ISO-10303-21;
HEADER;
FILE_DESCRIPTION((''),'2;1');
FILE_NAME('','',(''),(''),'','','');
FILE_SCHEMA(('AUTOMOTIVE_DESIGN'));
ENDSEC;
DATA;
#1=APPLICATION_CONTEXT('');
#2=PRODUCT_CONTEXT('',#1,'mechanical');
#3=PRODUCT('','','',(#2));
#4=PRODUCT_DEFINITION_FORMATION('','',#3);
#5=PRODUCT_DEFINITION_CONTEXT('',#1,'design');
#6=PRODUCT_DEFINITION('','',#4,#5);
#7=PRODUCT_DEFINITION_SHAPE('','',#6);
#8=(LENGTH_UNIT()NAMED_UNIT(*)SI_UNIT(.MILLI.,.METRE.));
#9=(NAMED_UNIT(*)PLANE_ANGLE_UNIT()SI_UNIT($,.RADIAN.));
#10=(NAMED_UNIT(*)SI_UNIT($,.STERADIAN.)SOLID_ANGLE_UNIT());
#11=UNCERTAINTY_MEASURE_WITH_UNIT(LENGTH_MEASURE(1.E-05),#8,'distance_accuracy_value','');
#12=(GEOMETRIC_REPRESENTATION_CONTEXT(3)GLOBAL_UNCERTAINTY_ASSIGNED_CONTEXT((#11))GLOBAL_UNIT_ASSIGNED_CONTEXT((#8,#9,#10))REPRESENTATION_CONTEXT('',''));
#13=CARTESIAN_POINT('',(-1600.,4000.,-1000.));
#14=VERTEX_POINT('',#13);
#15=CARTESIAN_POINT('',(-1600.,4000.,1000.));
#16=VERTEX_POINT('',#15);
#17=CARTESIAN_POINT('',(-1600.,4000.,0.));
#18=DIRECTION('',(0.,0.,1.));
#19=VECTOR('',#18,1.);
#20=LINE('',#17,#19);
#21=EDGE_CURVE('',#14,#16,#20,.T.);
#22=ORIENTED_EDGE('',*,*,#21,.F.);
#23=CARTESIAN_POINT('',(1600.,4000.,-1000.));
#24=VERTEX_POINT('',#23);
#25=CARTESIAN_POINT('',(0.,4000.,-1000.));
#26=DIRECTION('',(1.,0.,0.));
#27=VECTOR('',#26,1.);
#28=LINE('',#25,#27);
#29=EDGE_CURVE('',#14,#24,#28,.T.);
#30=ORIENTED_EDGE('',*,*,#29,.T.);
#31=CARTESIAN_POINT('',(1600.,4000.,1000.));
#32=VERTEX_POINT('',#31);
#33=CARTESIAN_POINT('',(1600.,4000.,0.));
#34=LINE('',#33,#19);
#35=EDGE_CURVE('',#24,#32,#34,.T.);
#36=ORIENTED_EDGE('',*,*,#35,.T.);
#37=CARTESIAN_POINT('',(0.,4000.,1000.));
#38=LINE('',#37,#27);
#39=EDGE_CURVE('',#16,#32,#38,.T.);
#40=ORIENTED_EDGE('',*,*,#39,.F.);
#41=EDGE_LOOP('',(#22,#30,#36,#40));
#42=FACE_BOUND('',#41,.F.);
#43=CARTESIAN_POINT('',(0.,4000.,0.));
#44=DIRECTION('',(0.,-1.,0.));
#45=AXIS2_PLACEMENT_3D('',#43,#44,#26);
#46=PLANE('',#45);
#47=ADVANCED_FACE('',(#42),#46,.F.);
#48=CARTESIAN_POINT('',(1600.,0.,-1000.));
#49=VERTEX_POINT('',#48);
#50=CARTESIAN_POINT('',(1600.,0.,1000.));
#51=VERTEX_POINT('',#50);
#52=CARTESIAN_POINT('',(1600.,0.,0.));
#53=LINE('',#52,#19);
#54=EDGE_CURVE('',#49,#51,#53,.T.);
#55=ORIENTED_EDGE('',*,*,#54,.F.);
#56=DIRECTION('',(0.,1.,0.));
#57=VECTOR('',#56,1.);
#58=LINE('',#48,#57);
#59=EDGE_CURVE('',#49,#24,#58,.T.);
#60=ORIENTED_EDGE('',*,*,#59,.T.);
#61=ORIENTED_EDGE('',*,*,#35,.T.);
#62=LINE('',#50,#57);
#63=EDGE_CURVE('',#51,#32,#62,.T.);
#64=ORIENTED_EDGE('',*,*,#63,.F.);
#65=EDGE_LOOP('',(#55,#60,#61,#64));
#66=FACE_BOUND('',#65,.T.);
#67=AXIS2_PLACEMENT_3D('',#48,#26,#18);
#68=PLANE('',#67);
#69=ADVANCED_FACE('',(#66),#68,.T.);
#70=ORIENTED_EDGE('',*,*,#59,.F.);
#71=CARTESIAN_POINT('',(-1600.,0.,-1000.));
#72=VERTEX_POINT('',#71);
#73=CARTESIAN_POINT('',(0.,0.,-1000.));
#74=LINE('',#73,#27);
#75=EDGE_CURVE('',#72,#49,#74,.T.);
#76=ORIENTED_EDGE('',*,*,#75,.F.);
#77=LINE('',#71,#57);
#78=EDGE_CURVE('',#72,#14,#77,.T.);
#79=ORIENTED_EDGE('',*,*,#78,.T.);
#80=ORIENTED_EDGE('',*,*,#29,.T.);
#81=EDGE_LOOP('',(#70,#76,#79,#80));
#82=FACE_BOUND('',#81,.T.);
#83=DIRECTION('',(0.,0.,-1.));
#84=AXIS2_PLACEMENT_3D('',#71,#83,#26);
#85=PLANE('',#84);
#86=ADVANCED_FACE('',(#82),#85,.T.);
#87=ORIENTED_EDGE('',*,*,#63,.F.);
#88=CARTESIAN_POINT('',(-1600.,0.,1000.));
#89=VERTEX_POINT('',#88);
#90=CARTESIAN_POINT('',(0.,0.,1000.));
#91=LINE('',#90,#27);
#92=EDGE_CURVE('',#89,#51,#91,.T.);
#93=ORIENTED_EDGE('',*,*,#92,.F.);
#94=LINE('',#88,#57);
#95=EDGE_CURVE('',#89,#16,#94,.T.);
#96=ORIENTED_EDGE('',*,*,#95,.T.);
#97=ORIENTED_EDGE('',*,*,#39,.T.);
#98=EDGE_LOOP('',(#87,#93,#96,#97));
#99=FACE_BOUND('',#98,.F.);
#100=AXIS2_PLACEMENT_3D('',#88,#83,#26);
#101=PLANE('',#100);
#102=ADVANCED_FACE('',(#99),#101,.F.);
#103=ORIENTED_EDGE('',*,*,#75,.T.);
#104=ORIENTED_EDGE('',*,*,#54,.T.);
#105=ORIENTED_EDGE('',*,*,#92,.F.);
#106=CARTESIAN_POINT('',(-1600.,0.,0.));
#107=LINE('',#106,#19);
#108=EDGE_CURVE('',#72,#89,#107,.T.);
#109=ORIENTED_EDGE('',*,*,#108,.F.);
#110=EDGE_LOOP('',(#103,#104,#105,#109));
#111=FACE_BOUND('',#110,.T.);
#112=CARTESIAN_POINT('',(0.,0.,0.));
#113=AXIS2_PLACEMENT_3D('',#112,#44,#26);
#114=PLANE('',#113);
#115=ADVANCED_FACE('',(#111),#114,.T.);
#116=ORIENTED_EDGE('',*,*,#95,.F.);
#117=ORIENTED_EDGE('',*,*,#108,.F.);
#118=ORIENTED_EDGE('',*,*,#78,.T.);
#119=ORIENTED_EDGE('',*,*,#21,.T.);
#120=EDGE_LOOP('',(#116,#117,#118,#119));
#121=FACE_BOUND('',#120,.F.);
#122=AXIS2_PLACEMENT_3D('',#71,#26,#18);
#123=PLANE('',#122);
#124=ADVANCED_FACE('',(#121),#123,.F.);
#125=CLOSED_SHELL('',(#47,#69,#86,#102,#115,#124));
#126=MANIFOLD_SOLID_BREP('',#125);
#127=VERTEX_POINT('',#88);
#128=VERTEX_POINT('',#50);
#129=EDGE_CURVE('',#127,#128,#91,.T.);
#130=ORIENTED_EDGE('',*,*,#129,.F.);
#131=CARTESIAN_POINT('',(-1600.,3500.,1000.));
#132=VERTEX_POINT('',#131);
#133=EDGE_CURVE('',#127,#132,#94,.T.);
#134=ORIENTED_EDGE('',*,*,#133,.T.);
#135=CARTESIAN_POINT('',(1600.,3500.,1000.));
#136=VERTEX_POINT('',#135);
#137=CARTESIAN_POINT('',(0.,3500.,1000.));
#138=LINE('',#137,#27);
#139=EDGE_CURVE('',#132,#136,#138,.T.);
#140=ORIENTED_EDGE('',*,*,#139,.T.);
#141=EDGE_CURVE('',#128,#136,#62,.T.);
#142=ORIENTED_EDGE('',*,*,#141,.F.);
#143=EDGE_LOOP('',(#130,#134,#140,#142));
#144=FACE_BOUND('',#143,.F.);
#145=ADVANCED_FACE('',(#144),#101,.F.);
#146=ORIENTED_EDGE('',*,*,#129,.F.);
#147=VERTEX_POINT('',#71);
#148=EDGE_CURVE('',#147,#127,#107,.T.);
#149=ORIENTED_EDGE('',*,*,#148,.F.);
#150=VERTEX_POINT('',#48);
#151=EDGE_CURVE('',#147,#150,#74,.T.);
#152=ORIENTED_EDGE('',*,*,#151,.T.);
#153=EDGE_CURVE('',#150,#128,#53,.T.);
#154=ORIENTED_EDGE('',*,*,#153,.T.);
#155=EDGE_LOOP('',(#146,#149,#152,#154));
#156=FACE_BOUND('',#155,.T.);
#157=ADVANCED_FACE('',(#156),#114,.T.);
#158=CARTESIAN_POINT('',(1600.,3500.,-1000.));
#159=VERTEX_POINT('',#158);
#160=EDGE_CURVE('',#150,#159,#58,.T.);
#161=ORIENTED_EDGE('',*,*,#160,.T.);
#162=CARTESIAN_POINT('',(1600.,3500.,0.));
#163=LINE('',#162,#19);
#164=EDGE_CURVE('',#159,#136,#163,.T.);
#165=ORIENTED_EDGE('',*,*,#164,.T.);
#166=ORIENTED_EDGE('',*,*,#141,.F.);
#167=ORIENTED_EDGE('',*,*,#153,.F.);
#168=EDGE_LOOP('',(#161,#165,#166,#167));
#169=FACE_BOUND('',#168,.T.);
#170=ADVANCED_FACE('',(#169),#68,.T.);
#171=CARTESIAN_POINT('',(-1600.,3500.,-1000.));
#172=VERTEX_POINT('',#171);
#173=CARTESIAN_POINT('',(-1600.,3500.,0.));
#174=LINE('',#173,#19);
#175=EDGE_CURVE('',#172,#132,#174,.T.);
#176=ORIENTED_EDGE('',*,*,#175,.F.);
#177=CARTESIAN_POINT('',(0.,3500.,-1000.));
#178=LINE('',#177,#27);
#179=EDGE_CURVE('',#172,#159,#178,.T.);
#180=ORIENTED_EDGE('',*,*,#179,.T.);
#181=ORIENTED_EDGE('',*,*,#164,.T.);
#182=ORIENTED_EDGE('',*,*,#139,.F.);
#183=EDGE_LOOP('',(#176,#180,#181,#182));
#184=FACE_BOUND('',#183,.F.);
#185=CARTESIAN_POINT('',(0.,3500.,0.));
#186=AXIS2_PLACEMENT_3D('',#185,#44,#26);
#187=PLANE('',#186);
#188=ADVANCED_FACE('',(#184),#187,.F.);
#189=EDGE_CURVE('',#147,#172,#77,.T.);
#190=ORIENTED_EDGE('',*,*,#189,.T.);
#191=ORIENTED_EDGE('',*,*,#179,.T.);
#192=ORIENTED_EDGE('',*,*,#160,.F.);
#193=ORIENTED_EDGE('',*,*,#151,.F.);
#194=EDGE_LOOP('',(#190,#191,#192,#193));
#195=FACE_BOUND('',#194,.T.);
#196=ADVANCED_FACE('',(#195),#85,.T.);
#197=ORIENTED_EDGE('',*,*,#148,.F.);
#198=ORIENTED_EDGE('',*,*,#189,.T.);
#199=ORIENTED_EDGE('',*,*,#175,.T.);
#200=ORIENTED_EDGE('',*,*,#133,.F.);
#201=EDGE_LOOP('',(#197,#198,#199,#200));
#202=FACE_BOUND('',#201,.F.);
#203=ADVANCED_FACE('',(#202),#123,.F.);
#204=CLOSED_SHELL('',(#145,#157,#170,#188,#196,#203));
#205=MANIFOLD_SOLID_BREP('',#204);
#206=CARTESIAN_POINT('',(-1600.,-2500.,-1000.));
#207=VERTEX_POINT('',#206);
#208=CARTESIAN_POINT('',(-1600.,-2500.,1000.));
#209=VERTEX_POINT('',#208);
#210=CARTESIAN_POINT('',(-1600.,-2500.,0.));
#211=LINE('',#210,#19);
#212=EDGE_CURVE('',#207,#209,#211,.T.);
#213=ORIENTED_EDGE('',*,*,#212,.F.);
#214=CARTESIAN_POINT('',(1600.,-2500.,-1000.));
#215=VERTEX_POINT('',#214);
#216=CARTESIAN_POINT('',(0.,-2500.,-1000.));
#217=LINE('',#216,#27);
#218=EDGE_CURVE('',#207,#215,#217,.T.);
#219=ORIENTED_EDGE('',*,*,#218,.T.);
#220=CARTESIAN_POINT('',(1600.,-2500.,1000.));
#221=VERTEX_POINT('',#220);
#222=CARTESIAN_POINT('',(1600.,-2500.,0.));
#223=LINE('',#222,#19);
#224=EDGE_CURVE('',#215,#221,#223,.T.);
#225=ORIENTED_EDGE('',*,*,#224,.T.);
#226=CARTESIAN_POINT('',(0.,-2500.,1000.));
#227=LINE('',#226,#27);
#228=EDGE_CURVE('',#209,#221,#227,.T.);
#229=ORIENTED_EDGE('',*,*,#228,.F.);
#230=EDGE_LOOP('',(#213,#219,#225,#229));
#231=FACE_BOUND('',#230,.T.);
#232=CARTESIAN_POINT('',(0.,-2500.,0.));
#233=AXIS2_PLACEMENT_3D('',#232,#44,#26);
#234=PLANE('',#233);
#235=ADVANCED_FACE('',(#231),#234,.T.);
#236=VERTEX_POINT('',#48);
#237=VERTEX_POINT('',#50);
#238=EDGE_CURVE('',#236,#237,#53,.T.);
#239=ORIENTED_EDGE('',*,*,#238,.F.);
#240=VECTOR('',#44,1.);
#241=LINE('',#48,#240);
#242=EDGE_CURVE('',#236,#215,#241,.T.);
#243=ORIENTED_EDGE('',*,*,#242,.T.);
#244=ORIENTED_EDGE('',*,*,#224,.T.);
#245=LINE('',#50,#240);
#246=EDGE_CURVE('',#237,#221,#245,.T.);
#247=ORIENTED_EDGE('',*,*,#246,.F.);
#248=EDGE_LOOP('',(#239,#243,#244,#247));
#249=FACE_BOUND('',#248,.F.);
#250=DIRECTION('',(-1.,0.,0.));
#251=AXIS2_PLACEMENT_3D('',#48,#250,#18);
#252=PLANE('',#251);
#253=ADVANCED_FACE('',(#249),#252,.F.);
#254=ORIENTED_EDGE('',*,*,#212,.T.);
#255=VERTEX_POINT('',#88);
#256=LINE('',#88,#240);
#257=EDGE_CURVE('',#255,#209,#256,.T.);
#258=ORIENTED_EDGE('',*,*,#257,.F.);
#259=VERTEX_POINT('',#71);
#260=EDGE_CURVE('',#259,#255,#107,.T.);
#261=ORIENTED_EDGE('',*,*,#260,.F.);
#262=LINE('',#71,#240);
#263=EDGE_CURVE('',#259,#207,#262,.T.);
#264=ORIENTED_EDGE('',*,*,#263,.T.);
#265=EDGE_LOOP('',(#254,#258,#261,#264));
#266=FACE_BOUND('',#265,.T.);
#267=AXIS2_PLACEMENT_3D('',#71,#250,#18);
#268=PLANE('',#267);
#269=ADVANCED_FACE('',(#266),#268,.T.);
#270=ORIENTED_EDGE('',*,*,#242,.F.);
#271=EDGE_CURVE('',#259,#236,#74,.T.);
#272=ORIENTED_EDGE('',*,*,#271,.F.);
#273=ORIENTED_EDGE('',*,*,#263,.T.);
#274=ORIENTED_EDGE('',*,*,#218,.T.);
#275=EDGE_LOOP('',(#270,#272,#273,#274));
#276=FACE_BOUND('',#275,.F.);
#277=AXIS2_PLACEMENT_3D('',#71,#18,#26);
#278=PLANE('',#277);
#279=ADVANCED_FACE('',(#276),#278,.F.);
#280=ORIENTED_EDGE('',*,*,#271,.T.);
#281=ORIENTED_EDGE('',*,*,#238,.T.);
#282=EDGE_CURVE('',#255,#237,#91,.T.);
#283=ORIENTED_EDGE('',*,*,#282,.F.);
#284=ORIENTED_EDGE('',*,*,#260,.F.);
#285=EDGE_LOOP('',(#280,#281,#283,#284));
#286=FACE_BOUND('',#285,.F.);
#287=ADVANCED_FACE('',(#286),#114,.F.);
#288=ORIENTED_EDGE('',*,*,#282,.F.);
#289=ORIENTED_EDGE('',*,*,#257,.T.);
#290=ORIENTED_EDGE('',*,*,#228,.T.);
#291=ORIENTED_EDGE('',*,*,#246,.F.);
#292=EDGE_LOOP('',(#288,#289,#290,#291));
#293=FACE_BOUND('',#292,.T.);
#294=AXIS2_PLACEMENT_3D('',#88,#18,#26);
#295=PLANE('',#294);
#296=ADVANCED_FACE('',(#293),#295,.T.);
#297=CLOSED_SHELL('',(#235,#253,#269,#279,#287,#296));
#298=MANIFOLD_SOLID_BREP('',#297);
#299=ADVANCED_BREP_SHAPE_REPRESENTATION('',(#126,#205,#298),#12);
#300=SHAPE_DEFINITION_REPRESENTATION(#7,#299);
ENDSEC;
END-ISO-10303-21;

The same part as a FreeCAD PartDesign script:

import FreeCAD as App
import Part
import Sketcher
from FreeCAD import Vector
Q = App.Units.Quantity


def add_polygon(sketch, points):
    """Adds a closed chain of lines whose ends are joined by coincident constraints."""
    first, n = sketch.GeometryCount, len(points)
    for a, b in zip(points, points[1:] + points[:1]):
        sketch.addGeometry(Part.LineSegment(App.Vector(*a, 0), App.Vector(*b, 0)), False)
    for i in range(n):
        sketch.addConstraint(Sketcher.Constraint("Coincident", first + i, 2, first + (i + 1) % n, 1))

doc = App.newDocument("Part")
body = doc.addObject("PartDesign::Body", "Body")

# Sketch on XZ plane
sketch1 = body.newObject("Sketcher::SketchObject", "Sketch")
sketch1.AttachmentSupport = (doc.getObject("XZ_Plane"), [""])
sketch1.MapMode = "FlatFace"
add_polygon(sketch1, [(-1600, 1000), (-1600, -1000), (1600, -1000), (1600, 1000)])  # lines 0-3
sketch1.addConstraint([
    Sketcher.Constraint("Vertical", 0),
    Sketcher.Constraint("Horizontal", 1),
    Sketcher.Constraint("Vertical", 2),
    Sketcher.Constraint("Horizontal", 3),
    Sketcher.Constraint("Symmetric", 0, 2, 2, 2, -1, 1),
    Sketcher.Constraint("DistanceX", 1, 1, 1, 2, Q("3200 mm")),
    Sketcher.Constraint("DistanceY", 0, 2, 0, 1, Q("2000 mm")),
])
pad1 = body.newObject("PartDesign::Pad", "Pad")
pad1.Profile = sketch1
pad1.Length = 2500
body2 = doc.addObject("PartDesign::Body", "Body001")

# Sketch on XZ plane
sketch2 = body2.newObject("Sketcher::SketchObject", "Sketch001")
sketch2.AttachmentSupport = (doc.getObject("XZ_Plane001"), [""])
sketch2.MapMode = "FlatFace"
add_polygon(sketch2, [(-1600, 1000), (-1600, -1000), (1600, -1000), (1600, 1000)])  # lines 0-3
sketch2.addConstraint([
    Sketcher.Constraint("Vertical", 0),
    Sketcher.Constraint("Horizontal", 1),
    Sketcher.Constraint("Vertical", 2),
    Sketcher.Constraint("Horizontal", 3),
    Sketcher.Constraint("Symmetric", 0, 2, 2, 2, -1, 1),
    Sketcher.Constraint("DistanceX", 1, 1, 1, 2, Q("3200 mm")),
    Sketcher.Constraint("DistanceY", 0, 2, 0, 1, Q("2000 mm")),
])
pad2 = body2.newObject("PartDesign::Pad", "Pad001")
pad2.Profile = sketch2
pad2.Length = 3500
pad2.Reversed = True
body3 = doc.addObject("PartDesign::Body", "Body002")

# Sketch on XZ plane
sketch3 = body3.newObject("Sketcher::SketchObject", "Sketch002")
sketch3.AttachmentSupport = (doc.getObject("XZ_Plane002"), [""])
sketch3.MapMode = "FlatFace"
add_polygon(sketch3, [(-1600, 1000), (-1600, -1000), (1600, -1000), (1600, 1000)])  # lines 0-3
sketch3.addConstraint([
    Sketcher.Constraint("Vertical", 0),
    Sketcher.Constraint("Horizontal", 1),
    Sketcher.Constraint("Vertical", 2),
    Sketcher.Constraint("Horizontal", 3),
    Sketcher.Constraint("Symmetric", 0, 2, 2, 2, -1, 1),
    Sketcher.Constraint("DistanceX", 1, 1, 1, 2, Q("3200 mm")),
    Sketcher.Constraint("DistanceY", 0, 2, 0, 1, Q("2000 mm")),
])
pad3 = body3.newObject("PartDesign::Pad", "Pad002")
pad3.Profile = sketch3
pad3.Length = 4000
pad3.Reversed = True

doc.recompute()
